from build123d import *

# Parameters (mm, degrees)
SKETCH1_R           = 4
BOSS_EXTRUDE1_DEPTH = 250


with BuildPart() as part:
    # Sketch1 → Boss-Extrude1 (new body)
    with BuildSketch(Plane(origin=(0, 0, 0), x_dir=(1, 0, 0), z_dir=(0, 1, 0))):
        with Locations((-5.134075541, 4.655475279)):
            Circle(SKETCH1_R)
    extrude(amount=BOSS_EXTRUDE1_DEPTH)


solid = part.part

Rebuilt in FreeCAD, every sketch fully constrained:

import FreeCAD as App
import Part
import Sketcher
from FreeCAD import Vector
Q = App.Units.Quantity

doc = App.newDocument("Part")
body = doc.addObject("PartDesign::Body", "Body")

sketch1 = body.newObject("Sketcher::SketchObject", "Sketch")
sketch1.AttachmentSupport = (doc.getObject("XZ_Plane"), [""])
sketch1.MapMode = "FlatFace"
sketch1.addGeometry(Part.Circle(Vector(-5.134076, -4.655475, 0), Vector(0, 0, 1), 4), False)
sketch1.addConstraint([
    Sketcher.Constraint("Diameter", 0, Q("8 mm")),
    Sketcher.Constraint("DistanceX", 0, 3, -1, 1, Q("5.134076 mm")),
    Sketcher.Constraint("DistanceY", 0, 3, -1, 1, Q("4.655475 mm")),
])
pad1 = body.newObject("PartDesign::Pad", "Pad")
pad1.Profile = sketch1
pad1.Length = 250
pad1.Reversed = True

doc.recompute()
